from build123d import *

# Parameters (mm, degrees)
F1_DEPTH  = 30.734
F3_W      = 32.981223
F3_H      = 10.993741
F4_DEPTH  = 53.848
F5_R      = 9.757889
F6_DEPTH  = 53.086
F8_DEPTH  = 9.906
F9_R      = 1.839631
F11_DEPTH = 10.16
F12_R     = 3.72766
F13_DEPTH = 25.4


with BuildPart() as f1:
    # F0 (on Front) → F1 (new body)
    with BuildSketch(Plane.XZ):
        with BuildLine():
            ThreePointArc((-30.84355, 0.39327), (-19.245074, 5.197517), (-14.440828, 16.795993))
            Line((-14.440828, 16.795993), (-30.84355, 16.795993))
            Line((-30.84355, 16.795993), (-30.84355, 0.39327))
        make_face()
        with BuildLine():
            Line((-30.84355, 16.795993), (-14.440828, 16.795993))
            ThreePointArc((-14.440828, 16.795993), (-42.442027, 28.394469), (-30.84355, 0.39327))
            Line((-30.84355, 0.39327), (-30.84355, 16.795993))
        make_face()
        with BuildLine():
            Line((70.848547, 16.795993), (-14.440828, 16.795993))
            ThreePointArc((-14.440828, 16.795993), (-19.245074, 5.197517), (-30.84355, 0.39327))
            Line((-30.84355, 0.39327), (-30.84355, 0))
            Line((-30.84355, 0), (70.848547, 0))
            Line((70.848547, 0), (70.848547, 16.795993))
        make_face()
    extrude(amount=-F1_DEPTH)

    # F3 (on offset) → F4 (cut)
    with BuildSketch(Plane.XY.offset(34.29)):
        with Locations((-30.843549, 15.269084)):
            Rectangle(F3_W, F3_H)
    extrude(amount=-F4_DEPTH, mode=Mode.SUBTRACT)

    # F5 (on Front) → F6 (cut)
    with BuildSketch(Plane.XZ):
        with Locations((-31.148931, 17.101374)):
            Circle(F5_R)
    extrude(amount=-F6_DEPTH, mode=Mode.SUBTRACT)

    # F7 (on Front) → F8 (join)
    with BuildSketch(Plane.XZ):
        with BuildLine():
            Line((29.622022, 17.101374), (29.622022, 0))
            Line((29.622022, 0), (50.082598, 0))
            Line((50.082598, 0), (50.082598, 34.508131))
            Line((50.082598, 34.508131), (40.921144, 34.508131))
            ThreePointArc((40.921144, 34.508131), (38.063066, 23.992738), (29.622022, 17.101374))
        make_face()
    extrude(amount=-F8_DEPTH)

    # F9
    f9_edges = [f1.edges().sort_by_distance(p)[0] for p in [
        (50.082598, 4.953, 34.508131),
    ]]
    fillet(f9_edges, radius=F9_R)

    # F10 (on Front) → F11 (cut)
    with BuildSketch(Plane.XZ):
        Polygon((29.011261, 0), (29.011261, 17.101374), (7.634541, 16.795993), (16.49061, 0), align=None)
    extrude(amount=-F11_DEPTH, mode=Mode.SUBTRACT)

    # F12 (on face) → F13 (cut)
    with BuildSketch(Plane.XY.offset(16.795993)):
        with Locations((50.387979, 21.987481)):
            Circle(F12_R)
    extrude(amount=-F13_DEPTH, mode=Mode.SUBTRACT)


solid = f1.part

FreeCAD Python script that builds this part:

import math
import FreeCAD as App
import Part
import Sketcher

V = App.Vector


def edges_at(feature, points):
    """Names of the edges that pass closest to the given points."""
    edges = feature.Shape.Edges
    near = lambda p: min(range(len(edges)), key=lambda i: edges[i].distToShape(Part.Vertex(*p))[0])
    return sorted({f"Edge{near(p) + 1}" for p in points})

doc = App.newDocument("Part")
params = doc.addObject("Spreadsheet::Sheet", "Params")
for row, (alias, value) in enumerate([
    ("pad1_length", "1.21 in"),
    ("pocket1_length", "2.12 in"),
    ("pocket2_length", "2.09 in"),
    ("pad2_length", "0.39 in"),
    ("fillet_radius", "1.839631 mm"),
    ("pocket3_length", "0.4 in"),
    ("pocket4_length", "1 in"),
], start=1):
    params.set(f"A{row}", alias)
    params.set(f"B{row}", "=" + value)
    params.setAlias(f"B{row}", alias)

body = doc.addObject("PartDesign::Body", "Body")

# Sketch on XZ plane
sketch1 = body.newObject("Sketcher::SketchObject", "Sketch")
sketch1.AttachmentSupport = (doc.getObject("XZ_Plane"), [""])
sketch1.MapMode = "FlatFace"
sketch1.addGeometry(Part.ArcOfCircle(Part.Circle(V(-30.84, 16.8, 0), V(0, 0, 1), 16.4), math.radians(0), math.radians(270)), False)
sketch1.addGeometry(Part.LineSegment(V(-30.84, 0.39, 0), V(-30.84, 0, 0)), False)
sketch1.addGeometry(Part.LineSegment(V(-30.84, 0, 0), V(70.85, 0, 0)), False)
sketch1.addGeometry(Part.LineSegment(V(70.85, 0, 0), V(70.85, 16.8, 0)), False)
sketch1.addGeometry(Part.LineSegment(V(70.85, 16.8, 0), V(-14.44, 16.8, 0)), False)
sketch1.addConstraint(Sketcher.Constraint("Coincident", 0, 2, 1, 1))
sketch1.addConstraint(Sketcher.Constraint("Coincident", 1, 2, 2, 1))
sketch1.addConstraint(Sketcher.Constraint("Coincident", 2, 2, 3, 1))
sketch1.addConstraint(Sketcher.Constraint("Coincident", 3, 2, 4, 1))
sketch1.addConstraint(Sketcher.Constraint("Coincident", 4, 2, 0, 1))
sketch1.addConstraint(Sketcher.Constraint("Vertical", 1))
sketch1.addConstraint(Sketcher.Constraint("Horizontal", 2))
sketch1.addConstraint(Sketcher.Constraint("Vertical", 3))
sketch1.addConstraint(Sketcher.Constraint("Horizontal", 4))
sketch1.addConstraint(Sketcher.Constraint("PointOnObject", 1, 2, -1))
sketch1.addConstraint(Sketcher.Constraint("Horizontal", 0, 3, 3, 2))
sketch1.addConstraint(Sketcher.Constraint("Radius", 0, 16.402723))
sketch1.addConstraint(Sketcher.Constraint("DistanceY", 1, 2, 1, 1, 0.39327))
sketch1.addConstraint(Sketcher.Constraint("DistanceX", 2, 1, 2, 2, 101.692097))
sketch1.addConstraint(Sketcher.Constraint("DistanceX", 4, 2, 4, 1, 85.289375))
sketch1.addConstraint(Sketcher.Constraint("DistanceX", 0, 3, -1, 1, 30.843551))
pad1 = body.newObject("PartDesign::Pad", "Pad")
pad1.Profile = sketch1
pad1.setExpression("Length", "Params.pad1_length")
pad1.Reversed = True

# Sketch on XY plane
sketch2 = body.newObject("Sketcher::SketchObject", "Sketch001")
sketch2.AttachmentSupport = (doc.getObject("XY_Plane"), [""])
sketch2.MapMode = "FlatFace"
sketch2.AttachmentOffset = App.Placement(V(0, 0, 1.35 * 25.4), App.Rotation())
sketch2.addGeometry(Part.LineSegment(V(-47, 21, 0), V(-47, 10, 0)), False)
sketch2.addGeometry(Part.LineSegment(V(-47, 10, 0), V(-14, 10, 0)), False)
sketch2.addGeometry(Part.LineSegment(V(-14, 10, 0), V(-14, 21, 0)), False)
sketch2.addGeometry(Part.LineSegment(V(-14, 21, 0), V(-47, 21, 0)), False)
sketch2.addConstraint(Sketcher.Constraint("Coincident", 0, 2, 1, 1))
sketch2.addConstraint(Sketcher.Constraint("Coincident", 1, 2, 2, 1))
sketch2.addConstraint(Sketcher.Constraint("Coincident", 2, 2, 3, 1))
sketch2.addConstraint(Sketcher.Constraint("Coincident", 3, 2, 0, 1))
sketch2.addConstraint(Sketcher.Constraint("Vertical", 0))
sketch2.addConstraint(Sketcher.Constraint("Horizontal", 1))
sketch2.addConstraint(Sketcher.Constraint("Vertical", 2))
sketch2.addConstraint(Sketcher.Constraint("Horizontal", 3))
sketch2.addConstraint(Sketcher.Constraint("DistanceY", 0, 2, 0, 1, 10.993741))
sketch2.addConstraint(Sketcher.Constraint("DistanceX", 1, 1, 1, 2, 32.981223))
sketch2.addConstraint(Sketcher.Constraint("DistanceX", 0, 2, -1, 1, 47.334161))
sketch2.addConstraint(Sketcher.Constraint("DistanceY", -1, 1, 0, 2, 9.772213))
pocket1 = body.newObject("PartDesign::Pocket", "Pocket")
pocket1.Profile = sketch2
pocket1.setExpression("Length", "Params.pocket1_length")

# Sketch on XZ plane
sketch3 = body.newObject("Sketcher::SketchObject", "Sketch002")
sketch3.AttachmentSupport = (doc.getObject("XZ_Plane"), [""])
sketch3.MapMode = "FlatFace"
sketch3.addGeometry(Part.Circle(V(-31, 17, 0), V(0, 0, 1), 10), False)
sketch3.addConstraint(Sketcher.Constraint("Diameter", 0, 19.515778))
sketch3.addConstraint(Sketcher.Constraint("DistanceX", 0, 3, -1, 1, 31.148931))
sketch3.addConstraint(Sketcher.Constraint("DistanceY", -1, 1, 0, 3, 17.101374))
pocket2 = body.newObject("PartDesign::Pocket", "Pocket001")
pocket2.Profile = sketch3
pocket2.setExpression("Length", "Params.pocket2_length")

# Sketch on XZ plane
sketch4 = body.newObject("Sketcher::SketchObject", "Sketch003")
sketch4.AttachmentSupport = (doc.getObject("XZ_Plane"), [""])
sketch4.MapMode = "FlatFace"
sketch4.addGeometry(Part.LineSegment(V(30, 17, 0), V(30, 0, 0)), False)
sketch4.addGeometry(Part.LineSegment(V(30, 0, 0), V(50, 0, 0)), False)
sketch4.addGeometry(Part.LineSegment(V(50, 0, 0), V(50, 35, 0)), False)
sketch4.addGeometry(Part.LineSegment(V(50, 35, 0), V(41, 35, 0)), False)
sketch4.addGeometry(Part.ArcOfCircle(Part.Circle(V(23, 34, 0), V(0, 0, 1), 18), math.radians(-69), math.radians(3)), False)
sketch4.addConstraint(Sketcher.Constraint("Coincident", 0, 2, 1, 1))
sketch4.addConstraint(Sketcher.Constraint("Coincident", 1, 2, 2, 1))
sketch4.addConstraint(Sketcher.Constraint("Coincident", 2, 2, 3, 1))
sketch4.addConstraint(Sketcher.Constraint("Coincident", 3, 2, 4, 2))
sketch4.addConstraint(Sketcher.Constraint("Coincident", 4, 1, 0, 1))
sketch4.addConstraint(Sketcher.Constraint("Vertical", 0))
sketch4.addConstraint(Sketcher.Constraint("Horizontal", 1))
sketch4.addConstraint(Sketcher.Constraint("Vertical", 2))
sketch4.addConstraint(Sketcher.Constraint("Horizontal", 3))
sketch4.addConstraint(Sketcher.Constraint("PointOnObject", 0, 2, -1))
sketch4.addConstraint(Sketcher.Constraint("Radius", 4, 17.839707))
sketch4.addConstraint(Sketcher.Constraint("DistanceY", 2, 1, 2, 2, 34.508131))
sketch4.addConstraint(Sketcher.Constraint("DistanceX", 1, 1, 1, 2, 20.460576))
sketch4.addConstraint(Sketcher.Constraint("DistanceX", 3, 2, 3, 1, 9.161454))
sketch4.addConstraint(Sketcher.Constraint("DistanceY", 0, 2, 0, 1, 17.101374))
sketch4.addConstraint(Sketcher.Constraint("DistanceX", -1, 1, 4, 3, 23.099482))
pad2 = body.newObject("PartDesign::Pad", "Pad001")
pad2.Profile = sketch4
pad2.setExpression("Length", "Params.pad2_length")
pad2.Reversed = True
doc.recompute()

fillet = body.newObject("PartDesign::Fillet", "Fillet")
fillet.Base = (pad2, edges_at(pad2, [(50.083, 4.953, 34.508)]))
fillet.setExpression("Radius", "Params.fillet_radius")

# Sketch on XZ plane
sketch5 = body.newObject("Sketcher::SketchObject", "Sketch004")
sketch5.AttachmentSupport = (doc.getObject("XZ_Plane"), [""])
sketch5.MapMode = "FlatFace"
sketch5.addGeometry(Part.LineSegment(V(29, 0, 0), V(29, 17, 0)), False)
sketch5.addGeometry(Part.LineSegment(V(29, 17, 0), V(8, 17, 0)), False)
sketch5.addGeometry(Part.LineSegment(V(8, 17, 0), V(16, 0, 0)), False)
sketch5.addGeometry(Part.LineSegment(V(16, 0, 0), V(29, 0, 0)), False)
sketch5.addConstraint(Sketcher.Constraint("Coincident", 0, 2, 1, 1))
sketch5.addConstraint(Sketcher.Constraint("Coincident", 1, 2, 2, 1))
sketch5.addConstraint(Sketcher.Constraint("Coincident", 2, 2, 3, 1))
sketch5.addConstraint(Sketcher.Constraint("Coincident", 3, 2, 0, 1))
sketch5.addConstraint(Sketcher.Constraint("Vertical", 0))
sketch5.addConstraint(Sketcher.Constraint("Horizontal", 3))
sketch5.addConstraint(Sketcher.Constraint("PointOnObject", 2, 2, -1))
sketch5.addConstraint(Sketcher.Constraint("Distance", 1, 21.378901))
sketch5.addConstraint(Sketcher.Constraint("DistanceX", 3, 1, 3, 2, 12.520651))
sketch5.addConstraint(Sketcher.Constraint("Distance", 2, 18.987768))
sketch5.addConstraint(Sketcher.Constraint("DistanceY", 0, 1, 0, 2, 17.101374))
sketch5.addConstraint(Sketcher.Constraint("DistanceX", -1, 1, 0, 2, 29.011261))
pocket3 = body.newObject("PartDesign::Pocket", "Pocket002")
pocket3.Profile = sketch5
pocket3.setExpression("Length", "Params.pocket3_length")

# Sketch on XY plane
sketch6 = body.newObject("Sketcher::SketchObject", "Sketch005")
sketch6.AttachmentSupport = (doc.getObject("XY_Plane"), [""])
sketch6.MapMode = "FlatFace"
sketch6.AttachmentOffset = App.Placement(V(0, 0, 16.795993), App.Rotation())
sketch6.addGeometry(Part.Circle(V(50.4, 22, 0), V(0, 0, 1), 3.7), False)
sketch6.addConstraint(Sketcher.Constraint("Diameter", 0, 7.45532))
sketch6.addConstraint(Sketcher.Constraint("DistanceX", -1, 1, 0, 3, 50.387979))
sketch6.addConstraint(Sketcher.Constraint("DistanceY", -1, 1, 0, 3, 21.987481))
pocket4 = body.newObject("PartDesign::Pocket", "Pocket003")
pocket4.Profile = sketch6
pocket4.setExpression("Length", "Params.pocket4_length")

doc.recompute()
